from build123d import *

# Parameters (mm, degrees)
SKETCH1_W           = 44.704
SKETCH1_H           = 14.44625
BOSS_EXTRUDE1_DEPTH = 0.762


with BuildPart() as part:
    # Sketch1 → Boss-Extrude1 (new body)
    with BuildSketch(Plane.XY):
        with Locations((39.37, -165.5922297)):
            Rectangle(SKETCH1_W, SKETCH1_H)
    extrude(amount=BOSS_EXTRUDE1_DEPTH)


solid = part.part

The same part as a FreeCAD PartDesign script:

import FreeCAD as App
import Part
import Sketcher
Q = App.Units.Quantity

doc = App.newDocument("Part")
body = doc.addObject("PartDesign::Body", "Body")

# Sketch on XY plane
sketch1 = body.newObject("Sketcher::SketchObject", "Sketch")
sketch1.AttachmentSupport = (doc.getObject("XY_Plane"), [""])
sketch1.MapMode = "FlatFace"
sketch1.addGeometry(Part.LineSegment(App.Vector(17, -158, 0), App.Vector(17, -173, 0)), False)
sketch1.addGeometry(Part.LineSegment(App.Vector(17, -173, 0), App.Vector(62, -173, 0)), False)
sketch1.addGeometry(Part.LineSegment(App.Vector(62, -173, 0), App.Vector(62, -158, 0)), False)
sketch1.addGeometry(Part.LineSegment(App.Vector(62, -158, 0), App.Vector(17, -158, 0)), False)
sketch1.addConstraint(Sketcher.Constraint("Coincident", 0, 2, 1, 1))
sketch1.addConstraint(Sketcher.Constraint("Coincident", 1, 2, 2, 1))
sketch1.addConstraint(Sketcher.Constraint("Coincident", 2, 2, 3, 1))
sketch1.addConstraint(Sketcher.Constraint("Coincident", 3, 2, 0, 1))
sketch1.addConstraint(Sketcher.Constraint("Vertical", 0))
sketch1.addConstraint(Sketcher.Constraint("Horizontal", 1))
sketch1.addConstraint(Sketcher.Constraint("Vertical", 2))
sketch1.addConstraint(Sketcher.Constraint("Horizontal", 3))
sketch1.addConstraint(Sketcher.Constraint("DistanceX", 1, 1, 1, 2, Q("1.76 in")))
sketch1.addConstraint(Sketcher.Constraint("DistanceX", -1, 1, 0, 2, Q("0.67 in")))
sketch1.addConstraint(Sketcher.Constraint("DistanceY", 0, 2, 0, 1, 14.44625))
sketch1.addConstraint(Sketcher.Constraint("DistanceY", 0, 2, -1, 1, 172.815355))
pad1 = body.newObject("PartDesign::Pad", "Pad")
pad1.Profile = sketch1
pad1.Length = Q("0.03 in")

doc.recompute()
